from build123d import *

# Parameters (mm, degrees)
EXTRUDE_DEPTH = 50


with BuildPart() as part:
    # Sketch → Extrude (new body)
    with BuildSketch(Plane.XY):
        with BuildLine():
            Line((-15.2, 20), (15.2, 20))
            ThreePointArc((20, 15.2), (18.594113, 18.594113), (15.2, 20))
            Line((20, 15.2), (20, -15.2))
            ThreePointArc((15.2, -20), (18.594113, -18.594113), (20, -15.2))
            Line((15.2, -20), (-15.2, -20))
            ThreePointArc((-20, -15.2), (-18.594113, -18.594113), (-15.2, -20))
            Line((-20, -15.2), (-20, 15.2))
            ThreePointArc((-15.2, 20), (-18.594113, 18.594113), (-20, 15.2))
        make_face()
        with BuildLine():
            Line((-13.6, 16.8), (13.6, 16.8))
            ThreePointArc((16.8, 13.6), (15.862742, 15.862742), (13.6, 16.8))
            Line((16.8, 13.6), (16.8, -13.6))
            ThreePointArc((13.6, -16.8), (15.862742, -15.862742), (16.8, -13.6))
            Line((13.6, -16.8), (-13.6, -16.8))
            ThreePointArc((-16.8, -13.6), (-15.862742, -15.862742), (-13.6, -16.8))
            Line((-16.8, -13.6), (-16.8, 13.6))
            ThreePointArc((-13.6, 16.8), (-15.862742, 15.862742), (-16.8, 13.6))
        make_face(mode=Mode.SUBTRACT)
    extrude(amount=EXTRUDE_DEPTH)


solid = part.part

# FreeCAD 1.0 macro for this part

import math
import FreeCAD as App
import Part
import Sketcher
from FreeCAD import Vector

doc = App.newDocument("Part")
body = doc.addObject("PartDesign::Body", "Body")

sketch1 = body.newObject("Sketcher::SketchObject", "Sketch")
sketch1.AttachmentSupport = (doc.getObject("XY_Plane"), [""])
sketch1.MapMode = "FlatFace"
sketch1.addGeometry([
    Part.LineSegment(Vector(15.2, 20, 0), Vector(-15.2, 20, 0)),
    Part.ArcOfCircle(Part.Circle(Vector(-15.2, 15.2, 0), Vector(0, 0, 1), 4.8), math.radians(90), math.radians(180)),
    Part.LineSegment(Vector(-20, 15.2, 0), Vector(-20, -15.2, 0)),
    Part.ArcOfCircle(Part.Circle(Vector(-15.2, -15.2, 0), Vector(0, 0, 1), 4.8), math.radians(180), math.radians(270)),
    Part.LineSegment(Vector(-15.2, -20, 0), Vector(15.2, -20, 0)),
    Part.ArcOfCircle(Part.Circle(Vector(15.2, -15.2, 0), Vector(0, 0, 1), 4.8), math.radians(-90), math.radians(0)),
    Part.LineSegment(Vector(20, -15.2, 0), Vector(20, 15.2, 0)),
    Part.ArcOfCircle(Part.Circle(Vector(15.2, 15.2, 0), Vector(0, 0, 1), 4.8), math.radians(0), math.radians(90)),
    Part.LineSegment(Vector(-13.6, 16.8, 0), Vector(13.6, 16.8, 0)),
    Part.ArcOfCircle(Part.Circle(Vector(13.6, 13.6, 0), Vector(0, 0, 1), 3.2), math.radians(0), math.radians(90)),
    Part.LineSegment(Vector(16.8, 13.6, 0), Vector(16.8, -13.6, 0)),
    Part.ArcOfCircle(Part.Circle(Vector(13.6, -13.6, 0), Vector(0, 0, 1), 3.2), math.radians(-90), math.radians(0)),
    Part.LineSegment(Vector(13.6, -16.8, 0), Vector(-13.6, -16.8, 0)),
    Part.ArcOfCircle(Part.Circle(Vector(-13.6, -13.6, 0), Vector(0, 0, 1), 3.2), math.radians(180), math.radians(270)),
    Part.LineSegment(Vector(-16.8, -13.6, 0), Vector(-16.8, 13.6, 0)),
    Part.ArcOfCircle(Part.Circle(Vector(-13.6, 13.6, 0), Vector(0, 0, 1), 3.2), math.radians(90), math.radians(180)),
], False)
sketch1.addConstraint([
    Sketcher.Constraint("Tangent", 0, 2, 1, 1),
    Sketcher.Constraint("Tangent", 1, 2, 2, 1),
    Sketcher.Constraint("Tangent", 2, 2, 3, 1),
    Sketcher.Constraint("Tangent", 3, 2, 4, 1),
    Sketcher.Constraint("Tangent", 4, 2, 5, 1),
    Sketcher.Constraint("Tangent", 5, 2, 6, 1),
    Sketcher.Constraint("Tangent", 6, 2, 7, 1),
    Sketcher.Constraint("Tangent", 7, 2, 0, 1),
    Sketcher.Constraint("Tangent", 8, 2, 9, 2),
    Sketcher.Constraint("Tangent", 9, 1, 10, 1),
    Sketcher.Constraint("Tangent", 10, 2, 11, 2),
    Sketcher.Constraint("Tangent", 11, 1, 12, 1),
    Sketcher.Constraint("Tangent", 12, 2, 13, 2),
    Sketcher.Constraint("Tangent", 13, 1, 14, 1),
    Sketcher.Constraint("Tangent", 14, 2, 15, 2),
    Sketcher.Constraint("Tangent", 15, 1, 8, 1),
    Sketcher.Constraint("Horizontal", 0),
    Sketcher.Constraint("Vertical", 2),
    Sketcher.Constraint("Horizontal", 4),
    Sketcher.Constraint("Vertical", 6),
    Sketcher.Constraint("Horizontal", 8),
    Sketcher.Constraint("Vertical", 10),
    Sketcher.Constraint("Horizontal", 12),
    Sketcher.Constraint("Vertical", 14),
    Sketcher.Constraint("Equal", 1, 3),
    Sketcher.Constraint("Equal", 3, 5),
    Sketcher.Constraint("Equal", 5, 7),
    Sketcher.Constraint("Equal", 9, 11),
    Sketcher.Constraint("Equal", 11, 13),
    Sketcher.Constraint("Equal", 13, 15),
    Sketcher.Constraint("Symmetric", 1, 3, 5, 3, -1, 1),
    Sketcher.Constraint("Symmetric", 9, 3, 13, 3, -1, 1),
    Sketcher.Constraint("Equal", 4, 2),
    Sketcher.Constraint("Equal", 12, 10),
    Sketcher.Constraint("Radius", 1, 4.799998),
    Sketcher.Constraint("Radius", 9, 3.199999),
    Sketcher.Constraint("DistanceX", 0, 2, 0, 1, 30.4),
    Sketcher.Constraint("DistanceX", 8, 1, 8, 2, 27.2),
])
pad1 = body.newObject("PartDesign::Pad", "Pad")
pad1.Profile = sketch1
pad1.Length = 50

doc.recompute()
